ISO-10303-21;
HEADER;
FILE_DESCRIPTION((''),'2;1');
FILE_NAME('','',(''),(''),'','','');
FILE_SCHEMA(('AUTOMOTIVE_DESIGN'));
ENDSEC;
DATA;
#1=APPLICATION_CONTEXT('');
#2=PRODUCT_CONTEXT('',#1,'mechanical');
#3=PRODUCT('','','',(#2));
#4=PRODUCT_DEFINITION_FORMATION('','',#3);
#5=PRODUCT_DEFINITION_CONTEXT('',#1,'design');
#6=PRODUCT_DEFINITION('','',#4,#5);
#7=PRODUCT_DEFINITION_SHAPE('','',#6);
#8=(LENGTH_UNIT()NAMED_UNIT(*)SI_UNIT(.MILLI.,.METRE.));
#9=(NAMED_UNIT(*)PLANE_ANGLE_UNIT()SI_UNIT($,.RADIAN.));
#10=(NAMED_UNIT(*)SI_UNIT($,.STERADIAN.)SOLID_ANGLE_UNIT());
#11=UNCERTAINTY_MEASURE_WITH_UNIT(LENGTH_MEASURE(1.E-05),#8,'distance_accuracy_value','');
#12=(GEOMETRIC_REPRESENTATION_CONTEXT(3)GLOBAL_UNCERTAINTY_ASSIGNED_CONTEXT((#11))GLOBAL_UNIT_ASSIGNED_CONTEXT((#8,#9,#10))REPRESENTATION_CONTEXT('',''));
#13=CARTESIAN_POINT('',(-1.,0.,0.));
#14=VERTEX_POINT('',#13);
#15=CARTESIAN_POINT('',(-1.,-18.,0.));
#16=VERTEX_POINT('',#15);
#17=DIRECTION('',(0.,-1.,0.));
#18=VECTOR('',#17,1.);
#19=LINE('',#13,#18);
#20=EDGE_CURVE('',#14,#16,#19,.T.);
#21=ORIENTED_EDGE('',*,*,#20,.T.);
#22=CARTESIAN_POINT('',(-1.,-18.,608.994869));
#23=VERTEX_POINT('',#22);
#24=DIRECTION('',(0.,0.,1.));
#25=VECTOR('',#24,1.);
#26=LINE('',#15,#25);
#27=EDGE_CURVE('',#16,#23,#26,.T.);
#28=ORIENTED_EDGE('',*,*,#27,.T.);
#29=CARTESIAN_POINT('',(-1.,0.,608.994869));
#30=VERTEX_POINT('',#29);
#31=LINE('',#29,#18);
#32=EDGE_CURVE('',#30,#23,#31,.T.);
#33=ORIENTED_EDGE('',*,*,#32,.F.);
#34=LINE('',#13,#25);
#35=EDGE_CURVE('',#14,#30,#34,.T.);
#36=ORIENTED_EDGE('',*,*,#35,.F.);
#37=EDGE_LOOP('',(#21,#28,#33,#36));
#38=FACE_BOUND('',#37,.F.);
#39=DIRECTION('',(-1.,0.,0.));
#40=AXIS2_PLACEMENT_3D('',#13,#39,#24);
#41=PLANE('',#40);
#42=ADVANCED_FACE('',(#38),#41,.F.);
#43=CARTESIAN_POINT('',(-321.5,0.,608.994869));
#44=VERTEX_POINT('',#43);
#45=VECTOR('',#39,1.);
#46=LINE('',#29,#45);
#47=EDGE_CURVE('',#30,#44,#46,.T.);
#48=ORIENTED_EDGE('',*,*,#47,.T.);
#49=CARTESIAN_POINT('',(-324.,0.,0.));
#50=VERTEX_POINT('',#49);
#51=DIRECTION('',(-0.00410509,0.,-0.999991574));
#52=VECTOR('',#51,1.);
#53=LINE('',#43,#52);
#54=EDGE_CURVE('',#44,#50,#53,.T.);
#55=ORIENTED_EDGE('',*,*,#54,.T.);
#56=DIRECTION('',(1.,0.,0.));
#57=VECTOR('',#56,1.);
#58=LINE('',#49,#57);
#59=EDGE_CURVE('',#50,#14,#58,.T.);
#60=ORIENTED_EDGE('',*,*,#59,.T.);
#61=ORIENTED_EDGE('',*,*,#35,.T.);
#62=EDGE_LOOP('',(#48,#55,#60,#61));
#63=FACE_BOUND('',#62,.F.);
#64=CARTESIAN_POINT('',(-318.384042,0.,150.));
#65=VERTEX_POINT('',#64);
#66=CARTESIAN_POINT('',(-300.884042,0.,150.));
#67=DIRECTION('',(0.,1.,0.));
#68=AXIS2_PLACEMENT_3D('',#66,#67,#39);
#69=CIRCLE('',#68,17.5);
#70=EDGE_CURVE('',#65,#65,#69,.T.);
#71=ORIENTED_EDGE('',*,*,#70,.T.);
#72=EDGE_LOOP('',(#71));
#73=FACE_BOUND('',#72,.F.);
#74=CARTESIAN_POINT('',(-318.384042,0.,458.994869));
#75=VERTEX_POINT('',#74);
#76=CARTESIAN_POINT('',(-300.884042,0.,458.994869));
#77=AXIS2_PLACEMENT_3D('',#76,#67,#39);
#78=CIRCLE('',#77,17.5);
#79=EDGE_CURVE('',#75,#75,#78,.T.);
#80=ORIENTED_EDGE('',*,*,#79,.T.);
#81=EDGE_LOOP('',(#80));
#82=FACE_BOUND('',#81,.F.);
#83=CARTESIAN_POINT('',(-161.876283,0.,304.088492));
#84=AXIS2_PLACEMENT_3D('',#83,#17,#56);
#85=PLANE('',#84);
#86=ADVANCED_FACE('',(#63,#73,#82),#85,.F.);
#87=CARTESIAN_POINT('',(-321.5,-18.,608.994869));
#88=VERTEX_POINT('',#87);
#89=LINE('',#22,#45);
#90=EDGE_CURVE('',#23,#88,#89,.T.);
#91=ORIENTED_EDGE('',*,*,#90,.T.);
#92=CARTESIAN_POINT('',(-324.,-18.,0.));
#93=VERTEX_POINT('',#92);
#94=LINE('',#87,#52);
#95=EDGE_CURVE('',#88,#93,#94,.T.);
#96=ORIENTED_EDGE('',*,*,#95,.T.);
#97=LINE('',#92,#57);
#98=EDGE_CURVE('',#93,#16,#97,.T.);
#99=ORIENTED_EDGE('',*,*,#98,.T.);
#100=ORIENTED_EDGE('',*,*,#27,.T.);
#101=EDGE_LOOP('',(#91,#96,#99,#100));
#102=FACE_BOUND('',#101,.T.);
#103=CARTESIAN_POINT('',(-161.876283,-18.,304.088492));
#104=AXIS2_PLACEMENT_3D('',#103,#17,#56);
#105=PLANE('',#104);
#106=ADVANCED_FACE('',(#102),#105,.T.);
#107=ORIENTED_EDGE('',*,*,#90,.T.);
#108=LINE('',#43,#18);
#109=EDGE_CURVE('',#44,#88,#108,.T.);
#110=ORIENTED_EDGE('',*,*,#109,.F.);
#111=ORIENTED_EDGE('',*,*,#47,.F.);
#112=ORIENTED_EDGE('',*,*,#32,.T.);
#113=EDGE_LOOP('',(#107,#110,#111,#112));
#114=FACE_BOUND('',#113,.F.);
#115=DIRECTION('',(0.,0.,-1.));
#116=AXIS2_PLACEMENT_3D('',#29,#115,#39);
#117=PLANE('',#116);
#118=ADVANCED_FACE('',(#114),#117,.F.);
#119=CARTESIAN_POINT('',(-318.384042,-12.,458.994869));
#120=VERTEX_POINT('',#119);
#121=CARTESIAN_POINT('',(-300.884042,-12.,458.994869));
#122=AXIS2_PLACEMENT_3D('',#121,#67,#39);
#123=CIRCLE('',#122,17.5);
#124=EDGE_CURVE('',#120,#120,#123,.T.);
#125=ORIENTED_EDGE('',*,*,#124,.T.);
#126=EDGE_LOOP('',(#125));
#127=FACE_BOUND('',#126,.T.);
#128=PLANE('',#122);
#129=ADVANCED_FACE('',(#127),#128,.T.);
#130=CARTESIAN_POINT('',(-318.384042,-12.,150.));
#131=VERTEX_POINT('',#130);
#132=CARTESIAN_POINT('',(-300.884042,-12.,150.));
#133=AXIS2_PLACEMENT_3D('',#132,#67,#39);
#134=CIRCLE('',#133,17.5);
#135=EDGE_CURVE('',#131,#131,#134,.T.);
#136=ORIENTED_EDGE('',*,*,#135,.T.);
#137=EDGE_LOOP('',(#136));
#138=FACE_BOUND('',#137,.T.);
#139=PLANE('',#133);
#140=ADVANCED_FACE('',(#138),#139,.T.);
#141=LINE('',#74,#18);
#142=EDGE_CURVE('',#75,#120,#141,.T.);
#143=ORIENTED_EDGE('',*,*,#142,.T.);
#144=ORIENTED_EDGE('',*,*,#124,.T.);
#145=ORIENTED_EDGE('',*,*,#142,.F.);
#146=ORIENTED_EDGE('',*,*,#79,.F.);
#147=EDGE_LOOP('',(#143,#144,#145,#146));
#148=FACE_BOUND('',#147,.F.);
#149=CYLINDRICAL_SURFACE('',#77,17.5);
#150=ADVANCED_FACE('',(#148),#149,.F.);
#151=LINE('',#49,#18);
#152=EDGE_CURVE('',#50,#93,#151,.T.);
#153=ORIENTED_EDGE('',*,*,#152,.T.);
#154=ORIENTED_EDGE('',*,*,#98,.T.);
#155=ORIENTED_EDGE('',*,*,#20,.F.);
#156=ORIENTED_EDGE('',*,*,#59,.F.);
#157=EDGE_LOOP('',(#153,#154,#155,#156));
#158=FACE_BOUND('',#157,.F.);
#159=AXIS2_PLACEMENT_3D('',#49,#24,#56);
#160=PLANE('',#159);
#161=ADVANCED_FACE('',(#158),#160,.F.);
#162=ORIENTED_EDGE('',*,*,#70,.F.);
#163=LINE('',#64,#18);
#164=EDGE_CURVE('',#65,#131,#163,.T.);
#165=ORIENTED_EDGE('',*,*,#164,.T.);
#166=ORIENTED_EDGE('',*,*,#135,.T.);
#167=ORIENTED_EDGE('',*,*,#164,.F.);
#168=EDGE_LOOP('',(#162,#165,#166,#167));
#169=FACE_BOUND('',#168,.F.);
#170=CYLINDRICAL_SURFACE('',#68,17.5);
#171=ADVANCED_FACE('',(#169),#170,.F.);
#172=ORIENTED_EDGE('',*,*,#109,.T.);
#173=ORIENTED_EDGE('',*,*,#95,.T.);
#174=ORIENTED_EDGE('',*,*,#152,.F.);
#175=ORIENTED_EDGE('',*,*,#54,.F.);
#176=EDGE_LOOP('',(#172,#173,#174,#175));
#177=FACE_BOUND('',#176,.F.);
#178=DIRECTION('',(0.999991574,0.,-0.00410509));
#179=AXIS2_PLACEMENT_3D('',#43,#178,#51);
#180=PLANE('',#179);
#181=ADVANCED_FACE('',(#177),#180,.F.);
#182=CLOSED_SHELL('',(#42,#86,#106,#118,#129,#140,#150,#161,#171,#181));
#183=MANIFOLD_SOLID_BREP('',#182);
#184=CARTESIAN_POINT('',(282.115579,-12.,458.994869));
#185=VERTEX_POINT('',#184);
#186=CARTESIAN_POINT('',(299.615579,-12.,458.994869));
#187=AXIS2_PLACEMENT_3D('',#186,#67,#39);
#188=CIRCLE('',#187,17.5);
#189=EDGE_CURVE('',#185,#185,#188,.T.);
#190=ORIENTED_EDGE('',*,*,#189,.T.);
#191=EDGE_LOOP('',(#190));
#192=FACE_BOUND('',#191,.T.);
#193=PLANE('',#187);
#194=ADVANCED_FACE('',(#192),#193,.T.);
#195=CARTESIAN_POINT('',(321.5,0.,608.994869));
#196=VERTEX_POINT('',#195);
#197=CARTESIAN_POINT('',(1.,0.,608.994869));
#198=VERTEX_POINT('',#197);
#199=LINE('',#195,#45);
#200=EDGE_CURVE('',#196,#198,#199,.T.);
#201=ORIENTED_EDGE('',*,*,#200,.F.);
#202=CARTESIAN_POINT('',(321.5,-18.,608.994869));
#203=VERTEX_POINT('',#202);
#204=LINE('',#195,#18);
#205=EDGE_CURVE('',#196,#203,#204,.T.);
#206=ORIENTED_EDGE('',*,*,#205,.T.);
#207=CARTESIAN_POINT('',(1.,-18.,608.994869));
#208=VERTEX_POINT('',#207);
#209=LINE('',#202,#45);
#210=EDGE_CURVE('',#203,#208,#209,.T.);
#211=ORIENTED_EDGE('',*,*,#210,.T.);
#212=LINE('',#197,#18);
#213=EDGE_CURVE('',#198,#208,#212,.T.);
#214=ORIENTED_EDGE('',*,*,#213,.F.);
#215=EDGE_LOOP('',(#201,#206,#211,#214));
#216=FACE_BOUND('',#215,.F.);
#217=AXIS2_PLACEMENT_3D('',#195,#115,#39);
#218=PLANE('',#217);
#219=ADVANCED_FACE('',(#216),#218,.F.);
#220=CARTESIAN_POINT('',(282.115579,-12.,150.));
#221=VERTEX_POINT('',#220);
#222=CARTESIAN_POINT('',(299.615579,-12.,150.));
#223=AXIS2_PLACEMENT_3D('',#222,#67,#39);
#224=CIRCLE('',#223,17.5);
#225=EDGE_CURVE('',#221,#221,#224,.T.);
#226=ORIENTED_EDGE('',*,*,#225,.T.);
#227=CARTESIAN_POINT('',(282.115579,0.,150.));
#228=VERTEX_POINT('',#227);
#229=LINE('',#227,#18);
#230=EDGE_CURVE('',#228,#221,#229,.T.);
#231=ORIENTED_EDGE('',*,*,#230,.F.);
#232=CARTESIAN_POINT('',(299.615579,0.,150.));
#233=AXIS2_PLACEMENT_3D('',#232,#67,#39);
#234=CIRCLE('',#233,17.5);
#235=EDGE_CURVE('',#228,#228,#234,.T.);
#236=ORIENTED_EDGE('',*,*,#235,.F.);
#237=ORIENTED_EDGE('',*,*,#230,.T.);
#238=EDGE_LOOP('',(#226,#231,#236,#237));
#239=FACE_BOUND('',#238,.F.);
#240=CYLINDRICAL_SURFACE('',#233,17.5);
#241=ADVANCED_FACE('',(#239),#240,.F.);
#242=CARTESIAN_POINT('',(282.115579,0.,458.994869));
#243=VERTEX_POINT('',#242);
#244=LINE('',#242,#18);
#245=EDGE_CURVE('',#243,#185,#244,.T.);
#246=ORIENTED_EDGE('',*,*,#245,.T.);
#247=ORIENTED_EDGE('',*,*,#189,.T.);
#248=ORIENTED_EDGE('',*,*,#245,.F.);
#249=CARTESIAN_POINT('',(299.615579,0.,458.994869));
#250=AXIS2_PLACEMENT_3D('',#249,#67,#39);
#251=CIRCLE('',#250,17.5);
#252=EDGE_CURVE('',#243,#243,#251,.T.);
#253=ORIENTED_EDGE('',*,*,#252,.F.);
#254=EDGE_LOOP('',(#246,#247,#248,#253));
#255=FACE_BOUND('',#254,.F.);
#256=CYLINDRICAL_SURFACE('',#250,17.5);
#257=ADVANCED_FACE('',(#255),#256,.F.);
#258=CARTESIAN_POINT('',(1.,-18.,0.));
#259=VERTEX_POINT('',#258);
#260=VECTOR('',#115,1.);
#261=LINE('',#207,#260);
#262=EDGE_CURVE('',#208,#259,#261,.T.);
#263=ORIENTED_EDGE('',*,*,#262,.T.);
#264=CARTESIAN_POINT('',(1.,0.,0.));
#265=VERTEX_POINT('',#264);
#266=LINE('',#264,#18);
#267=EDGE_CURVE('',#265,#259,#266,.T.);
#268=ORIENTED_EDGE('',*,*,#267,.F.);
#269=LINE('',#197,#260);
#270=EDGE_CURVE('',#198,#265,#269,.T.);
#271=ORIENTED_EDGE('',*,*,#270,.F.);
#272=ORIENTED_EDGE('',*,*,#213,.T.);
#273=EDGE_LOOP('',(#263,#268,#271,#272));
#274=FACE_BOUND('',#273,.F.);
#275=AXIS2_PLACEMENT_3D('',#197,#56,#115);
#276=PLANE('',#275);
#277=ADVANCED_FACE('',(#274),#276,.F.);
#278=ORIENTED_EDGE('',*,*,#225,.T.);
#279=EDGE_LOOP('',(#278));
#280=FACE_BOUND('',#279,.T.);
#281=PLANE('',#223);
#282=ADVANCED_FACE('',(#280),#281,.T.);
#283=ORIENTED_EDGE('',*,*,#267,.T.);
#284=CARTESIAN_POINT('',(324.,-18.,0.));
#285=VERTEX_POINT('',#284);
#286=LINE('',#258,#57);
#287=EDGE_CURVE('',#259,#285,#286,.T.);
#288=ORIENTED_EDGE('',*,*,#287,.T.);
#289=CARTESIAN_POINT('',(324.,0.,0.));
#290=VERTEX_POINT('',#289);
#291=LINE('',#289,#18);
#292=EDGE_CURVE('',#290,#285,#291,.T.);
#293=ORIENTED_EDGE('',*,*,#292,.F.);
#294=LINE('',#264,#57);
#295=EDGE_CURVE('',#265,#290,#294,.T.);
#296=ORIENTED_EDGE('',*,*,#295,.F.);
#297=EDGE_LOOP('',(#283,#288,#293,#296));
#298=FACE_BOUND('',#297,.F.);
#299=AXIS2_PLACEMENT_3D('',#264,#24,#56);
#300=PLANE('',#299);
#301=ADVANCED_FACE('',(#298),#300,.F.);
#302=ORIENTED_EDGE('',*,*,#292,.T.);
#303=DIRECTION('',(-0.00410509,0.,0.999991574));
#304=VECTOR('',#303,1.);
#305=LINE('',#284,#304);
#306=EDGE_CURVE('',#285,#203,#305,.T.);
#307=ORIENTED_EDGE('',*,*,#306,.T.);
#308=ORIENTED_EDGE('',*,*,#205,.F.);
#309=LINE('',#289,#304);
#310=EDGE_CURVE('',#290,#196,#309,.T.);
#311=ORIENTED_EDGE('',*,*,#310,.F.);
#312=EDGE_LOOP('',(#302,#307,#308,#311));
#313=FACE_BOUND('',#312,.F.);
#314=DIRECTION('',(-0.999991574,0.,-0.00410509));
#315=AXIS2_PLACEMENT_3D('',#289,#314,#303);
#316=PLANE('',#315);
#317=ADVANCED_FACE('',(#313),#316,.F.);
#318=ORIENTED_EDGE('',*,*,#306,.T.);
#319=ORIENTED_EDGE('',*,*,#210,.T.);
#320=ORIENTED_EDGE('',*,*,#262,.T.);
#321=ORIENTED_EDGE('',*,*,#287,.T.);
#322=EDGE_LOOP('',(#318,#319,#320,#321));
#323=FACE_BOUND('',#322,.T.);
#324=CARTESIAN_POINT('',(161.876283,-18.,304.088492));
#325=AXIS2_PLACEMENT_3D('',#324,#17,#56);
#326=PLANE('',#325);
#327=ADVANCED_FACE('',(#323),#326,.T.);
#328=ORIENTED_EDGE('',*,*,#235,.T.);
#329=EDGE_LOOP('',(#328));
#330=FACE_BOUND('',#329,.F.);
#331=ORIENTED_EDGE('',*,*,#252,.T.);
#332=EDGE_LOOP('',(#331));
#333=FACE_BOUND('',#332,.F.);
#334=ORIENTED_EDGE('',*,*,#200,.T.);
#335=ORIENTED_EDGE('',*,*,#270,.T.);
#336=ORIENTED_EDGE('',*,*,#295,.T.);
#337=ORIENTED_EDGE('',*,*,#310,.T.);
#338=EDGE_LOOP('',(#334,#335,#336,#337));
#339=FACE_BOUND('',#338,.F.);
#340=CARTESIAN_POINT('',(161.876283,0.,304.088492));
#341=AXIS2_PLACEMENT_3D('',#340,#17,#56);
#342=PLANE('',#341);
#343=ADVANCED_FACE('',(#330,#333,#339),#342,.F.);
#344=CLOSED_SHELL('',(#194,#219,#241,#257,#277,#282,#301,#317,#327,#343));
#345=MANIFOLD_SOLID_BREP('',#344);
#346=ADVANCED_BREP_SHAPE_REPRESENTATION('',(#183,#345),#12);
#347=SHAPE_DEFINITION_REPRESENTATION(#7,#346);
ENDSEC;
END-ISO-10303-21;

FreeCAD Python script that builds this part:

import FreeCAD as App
import Part
import Sketcher
Q = App.Units.Quantity

doc = App.newDocument("Part")
params = doc.addObject("Spreadsheet::Sheet", "Params")
for row, (alias, value) in enumerate([
    ("sketch1_width", "323 mm"),
    ("sketch1_length", "609 mm"),
    ("sketch1_width2", "320.5 mm"),
    ("pad1_length", "18 mm"),
    ("sketch2_diameter", "35 mm"),
    ("pocket1_length", "12 mm"),
], start=1):
    params.set(f"A{row}", alias)
    params.set(f"B{row}", "=" + value)
    params.setAlias(f"B{row}", alias)

body = doc.addObject("PartDesign::Body", "Body")
body.AllowCompound = True

sketch1 = body.newObject("Sketcher::SketchObject", "Sketch")
sketch1.AttachmentSupport = (doc.getObject("XZ_Plane"), [""])
sketch1.MapMode = "FlatFace"
sketch1.addGeometry([
    Part.LineSegment(App.Vector(321.5, 608.994869, 0), App.Vector(1, 608.994869, 0)),
    Part.LineSegment(App.Vector(1, 608.994869, 0), App.Vector(1, 0, 0)),
    Part.LineSegment(App.Vector(1, 0, 0), App.Vector(324, 0, 0)),
    Part.LineSegment(App.Vector(324, 0, 0), App.Vector(321.5, 608.994869, 0)),
    Part.LineSegment(App.Vector(-324, 0, 0), App.Vector(-1, 0, 0)),
    Part.LineSegment(App.Vector(-1, 0, 0), App.Vector(-1, 608.994869, 0)),
    Part.LineSegment(App.Vector(-1, 608.994869, 0), App.Vector(-321.5, 608.994869, 0)),
    Part.LineSegment(App.Vector(-321.5, 608.994869, 0), App.Vector(-324, 0, 0)),
], False)
sketch1.addConstraint([
    Sketcher.Constraint("Coincident", 0, 2, 1, 1),
    Sketcher.Constraint("Coincident", 1, 2, 2, 1),
    Sketcher.Constraint("Coincident", 2, 2, 3, 1),
    Sketcher.Constraint("Coincident", 3, 2, 0, 1),
    Sketcher.Constraint("Coincident", 4, 2, 5, 1),
    Sketcher.Constraint("Coincident", 5, 2, 6, 1),
    Sketcher.Constraint("Coincident", 6, 2, 7, 1),
    Sketcher.Constraint("Coincident", 7, 2, 4, 1),
    Sketcher.Constraint("Horizontal", 0),
    Sketcher.Constraint("Vertical", 1),
    Sketcher.Constraint("Horizontal", 2),
    Sketcher.Constraint("Horizontal", 4),
    Sketcher.Constraint("Vertical", 5),
    Sketcher.Constraint("Horizontal", 6),
    Sketcher.Constraint("Symmetric", 1, 2, 4, 2, -1, 1),
    Sketcher.Constraint("Symmetric", 3, 2, 6, 2, -2),
    Sketcher.Constraint("Symmetric", 2, 2, 7, 2, -2),
    Sketcher.Constraint("DistanceX", 2, 1, 2, 2, Q("323 mm")),
    Sketcher.Constraint("Distance", 3, Q("609 mm")),
    Sketcher.Constraint("DistanceX", 0, 2, 0, 1, Q("320.5 mm")),
    Sketcher.Constraint("DistanceX", -1, 1, 0, 2, Q("1 mm")),
])
sketch1.setExpression("Constraints[17]", "Params.sketch1_width")
sketch1.setExpression("Constraints[18]", "Params.sketch1_length")
sketch1.setExpression("Constraints[19]", "Params.sketch1_width2")
pad1 = body.newObject("PartDesign::Pad", "Pad")
pad1.Profile = sketch1
pad1.setExpression("Length", "Params.pad1_length")

sketch2 = body.newObject("Sketcher::SketchObject", "Sketch001")
sketch2.AttachmentSupport = (doc.getObject("XZ_Plane"), [""])
sketch2.MapMode = "FlatFace"
sketch2.addGeometry([
    Part.Circle(App.Vector(299.615579, 458.994869, 0), App.Vector(0, 0, 1), 17.5),
    Part.Circle(App.Vector(299.615579, 150, 0), App.Vector(0, 0, 1), 17.5),
    Part.Circle(App.Vector(-300.884042, 458.994869, 0), App.Vector(0, 0, 1), 17.5),
    Part.Circle(App.Vector(-300.884042, 150, 0), App.Vector(0, 0, 1), 17.5),
], False)
sketch2.addConstraint([
    Sketcher.Constraint("Equal", 0, 1),
    Sketcher.Constraint("Equal", 1, 2),
    Sketcher.Constraint("Equal", 2, 3),
    Sketcher.Constraint("Horizontal", 0, 3, 2, 3),
    Sketcher.Constraint("Horizontal", 1, 3, 3, 3),
    Sketcher.Constraint("Vertical", 0, 3, 1, 3),
    Sketcher.Constraint("Vertical", 2, 3, 3, 3),
    Sketcher.Constraint("Diameter", 0, Q("35 mm")),
    Sketcher.Constraint("DistanceY", -1, 1, 1, 3, Q("150 mm")),
    Sketcher.Constraint("DistanceX", -1, 1, 0, 3, Q("299.615579 mm")),
    Sketcher.Constraint("DistanceY", -1, 1, 0, 3, Q("458.994869 mm")),
    Sketcher.Constraint("DistanceX", 2, 3, -1, 1, Q("300.884042 mm")),
])
sketch2.setExpression("Constraints[7]", "Params.sketch2_diameter")
pocket1 = body.newObject("PartDesign::Pocket", "Pocket")
pocket1.Profile = sketch2
pocket1.setExpression("Length", "Params.pocket1_length")
pocket1.Reversed = True

doc.recompute()
